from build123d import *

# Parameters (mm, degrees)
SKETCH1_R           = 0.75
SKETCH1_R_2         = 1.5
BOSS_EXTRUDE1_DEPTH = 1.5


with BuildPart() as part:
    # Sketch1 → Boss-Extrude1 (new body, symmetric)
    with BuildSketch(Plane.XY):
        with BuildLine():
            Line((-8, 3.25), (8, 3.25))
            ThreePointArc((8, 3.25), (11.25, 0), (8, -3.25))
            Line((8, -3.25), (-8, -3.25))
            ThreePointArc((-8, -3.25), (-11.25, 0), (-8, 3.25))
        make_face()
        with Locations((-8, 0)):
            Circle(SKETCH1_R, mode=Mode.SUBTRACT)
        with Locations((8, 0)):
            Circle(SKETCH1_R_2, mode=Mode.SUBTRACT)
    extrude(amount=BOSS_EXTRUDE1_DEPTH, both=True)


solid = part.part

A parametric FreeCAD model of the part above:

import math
import FreeCAD as App
import Part
import Sketcher

doc = App.newDocument("Part")
body = doc.addObject("PartDesign::Body", "Body")

# Sketch on XY plane
sketch1 = body.newObject("Sketcher::SketchObject", "Sketch")
sketch1.AttachmentSupport = (doc.getObject("XY_Plane"), [""])
sketch1.MapMode = "FlatFace"
sketch1.addGeometry([
    Part.LineSegment(App.Vector(8, 3.25, 0), App.Vector(-8, 3.25, 0)),  # 0
    Part.ArcOfCircle(Part.Circle(App.Vector(-8, 0, 0), App.Vector(0, 0, 1), 3.25), math.radians(90), math.radians(270)),  # 1
    Part.LineSegment(App.Vector(-8, -3.25, 0), App.Vector(8, -3.25, 0)),  # 2
    Part.ArcOfCircle(Part.Circle(App.Vector(8, 0, 0), App.Vector(0, 0, 1), 3.25), math.radians(-90), math.radians(90)),  # 3
    Part.Circle(App.Vector(8, 0, 0), App.Vector(0, 0, 1), 1.5),  # 4
    Part.Circle(App.Vector(-8, 0, 0), App.Vector(0, 0, 1), 0.75),  # 5
], False)
sketch1.addConstraint([
    Sketcher.Constraint("Tangent", 0, 2, 1, 1),
    Sketcher.Constraint("Tangent", 1, 2, 2, 1),
    Sketcher.Constraint("Tangent", 2, 2, 3, 1),
    Sketcher.Constraint("Tangent", 3, 2, 0, 1),
    Sketcher.Constraint("Horizontal", 0),
    Sketcher.Constraint("Horizontal", 2),
    Sketcher.Constraint("Coincident", 4, 3, 3, 3),
    Sketcher.Constraint("Coincident", 5, 3, 1, 3),
    Sketcher.Constraint("Symmetric", 1, 3, 3, 3, -1, 1),
    Sketcher.Constraint("Diameter", 4, 3.0),
    Sketcher.Constraint("Diameter", 5, 1.5),
    Sketcher.Constraint("DistanceX", 0, 2, 0, 1, 16.0),
    Sketcher.Constraint("Radius", 1, 3.25),
])
pad1 = body.newObject("PartDesign::Pad", "Pad")
pad1.Profile = sketch1
pad1.Length = 3
pad1.Midplane = True

doc.recompute()
